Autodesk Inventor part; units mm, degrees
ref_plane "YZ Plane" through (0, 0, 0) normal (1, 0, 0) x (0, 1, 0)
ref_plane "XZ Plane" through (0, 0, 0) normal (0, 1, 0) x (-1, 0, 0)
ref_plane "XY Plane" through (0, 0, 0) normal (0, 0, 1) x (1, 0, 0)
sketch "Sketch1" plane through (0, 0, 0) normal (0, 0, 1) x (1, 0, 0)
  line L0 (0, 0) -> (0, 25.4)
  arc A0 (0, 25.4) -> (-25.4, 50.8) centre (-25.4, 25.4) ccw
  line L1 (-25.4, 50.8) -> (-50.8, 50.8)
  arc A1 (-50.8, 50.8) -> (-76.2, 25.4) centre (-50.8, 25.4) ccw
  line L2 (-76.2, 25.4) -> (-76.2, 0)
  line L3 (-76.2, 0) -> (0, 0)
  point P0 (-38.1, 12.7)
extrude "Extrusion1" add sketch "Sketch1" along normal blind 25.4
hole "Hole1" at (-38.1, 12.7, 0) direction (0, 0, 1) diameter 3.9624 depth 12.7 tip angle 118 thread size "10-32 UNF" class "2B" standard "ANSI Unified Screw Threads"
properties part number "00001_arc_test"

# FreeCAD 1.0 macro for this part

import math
import FreeCAD as App
import Part
import Sketcher
Q = App.Units.Quantity

doc = App.newDocument("Part")
body = doc.addObject("PartDesign::Body", "Body")

sketch1 = body.newObject("Sketcher::SketchObject", "Sketch")
sketch1.AttachmentSupport = (doc.getObject("XY_Plane"), [""])
sketch1.MapMode = "FlatFace"
sketch1.addGeometry([
    Part.LineSegment(App.Vector(-76, 0, 0), App.Vector(0, 0, 0)),
    Part.LineSegment(App.Vector(0, 0, 0), App.Vector(0, 25, 0)),
    Part.ArcOfCircle(Part.Circle(App.Vector(-25, 25, 0), App.Vector(0, 0, 1), 25), math.radians(0), math.radians(90)),
    Part.LineSegment(App.Vector(-25, 51, 0), App.Vector(-51, 51, 0)),
    Part.ArcOfCircle(Part.Circle(App.Vector(-51, 25, 0), App.Vector(0, 0, 1), 25), math.radians(90), math.radians(180)),
    Part.LineSegment(App.Vector(-76, 25, 0), App.Vector(-76, 0, 0)),
], False)
sketch1.addConstraint([
    Sketcher.Constraint("Coincident", 0, 2, 1, 1),
    Sketcher.Constraint("Tangent", 1, 2, 2, 1),
    Sketcher.Constraint("Tangent", 2, 2, 3, 1),
    Sketcher.Constraint("Tangent", 3, 2, 4, 1),
    Sketcher.Constraint("Tangent", 4, 2, 5, 1),
    Sketcher.Constraint("Coincident", 5, 2, 0, 1),
    Sketcher.Constraint("Horizontal", 0),
    Sketcher.Constraint("Vertical", 1),
    Sketcher.Constraint("Horizontal", 3),
    Sketcher.Constraint("Vertical", 5),
    Sketcher.Constraint("Coincident", 0, 2, -1, 1),
    Sketcher.Constraint("Equal", 2, 4),
    Sketcher.Constraint("Equal", 3, 1),
    Sketcher.Constraint("Radius", 2, Q("1 in")),
    Sketcher.Constraint("DistanceX", 0, 1, 0, 2, Q("3 in")),
])
pad1 = body.newObject("PartDesign::Pad", "Pad")
pad1.Profile = sketch1
pad1.Length = Q("1 in")

sketch2 = body.newObject("Sketcher::SketchObject", "Sketch001")
sketch2.AttachmentSupport = (doc.getObject("XY_Plane"), [""])
sketch2.MapMode = "FlatFace"
sketch2.addGeometry(Part.Circle(App.Vector(-38.1, 12.7, 0), App.Vector(0, 0, 1), 2), False)
sketch2.addConstraint([
    Sketcher.Constraint("Diameter", 0, Q("0.156 in")),
    Sketcher.Constraint("DistanceX", 0, 3, -1, 1, Q("1.5 in")),
    Sketcher.Constraint("DistanceY", -1, 1, 0, 3, Q("0.5 in")),
])
doc.recompute()
hole = body.newObject("PartDesign::Hole", "Hole")
hole.Profile = sketch2
hole.ThreadType = "None"
hole.Diameter = Q("0.156 in")
hole.DepthType = "Dimension"
hole.Depth = Q("0.5 in")
hole.DrillPoint = "Angled"
hole.DrillPointAngle = 118
hole.Reversed = True

doc.recompute()
